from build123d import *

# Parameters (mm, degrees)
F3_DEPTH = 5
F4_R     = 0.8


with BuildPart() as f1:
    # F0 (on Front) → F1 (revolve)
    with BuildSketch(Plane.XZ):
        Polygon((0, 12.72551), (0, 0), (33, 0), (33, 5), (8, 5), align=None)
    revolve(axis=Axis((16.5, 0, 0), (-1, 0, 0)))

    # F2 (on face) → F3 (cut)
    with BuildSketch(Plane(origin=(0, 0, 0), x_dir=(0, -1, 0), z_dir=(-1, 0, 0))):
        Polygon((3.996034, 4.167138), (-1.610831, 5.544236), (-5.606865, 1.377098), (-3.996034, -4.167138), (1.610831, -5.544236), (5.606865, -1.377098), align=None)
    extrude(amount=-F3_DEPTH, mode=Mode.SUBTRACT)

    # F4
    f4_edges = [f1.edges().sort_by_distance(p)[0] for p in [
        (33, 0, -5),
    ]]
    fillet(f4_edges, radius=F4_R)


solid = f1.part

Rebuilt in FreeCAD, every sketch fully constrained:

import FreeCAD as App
import Part
import Sketcher
from FreeCAD import Vector
Q = App.Units.Quantity


def edges_at(feature, points):
    """Names of the edges that pass closest to the given points."""
    edges = feature.Shape.Edges
    near = lambda p: min(range(len(edges)), key=lambda i: edges[i].distToShape(Part.Vertex(*p))[0])
    return sorted({f"Edge{near(p) + 1}" for p in points})


def add_polygon(sketch, points):
    """Adds a closed chain of lines whose ends are joined by coincident constraints."""
    first, n = sketch.GeometryCount, len(points)
    for a, b in zip(points, points[1:] + points[:1]):
        sketch.addGeometry(Part.LineSegment(App.Vector(*a, 0), App.Vector(*b, 0)), False)
    for i in range(n):
        sketch.addConstraint(Sketcher.Constraint("Coincident", first + i, 2, first + (i + 1) % n, 1))

doc = App.newDocument("Part")
body = doc.addObject("PartDesign::Body", "Body")

# Sketch on XZ plane
sketch1 = doc.addObject("Sketcher::SketchObject", "Sketch")
body.addObject(sketch1)
sketch1.AttachmentSupport = (doc.XZ_Plane, [""])
sketch1.MapMode = "FlatFace"
add_polygon(sketch1, [(0, 13), (0, 0), (33, 0), (33, 5), (8, 5)])  # lines 0-4
sketch1.addConstraint([
    Sketcher.Constraint("Vertical", 0),
    Sketcher.Constraint("Horizontal", 1),
    Sketcher.Constraint("Vertical", 2),
    Sketcher.Constraint("Horizontal", 3),
    Sketcher.Constraint("Coincident", 0, 2, -1, 1),
    Sketcher.Constraint("DistanceX", 1, 1, 1, 2, Q("33 mm")),
    Sketcher.Constraint("DistanceX", 3, 2, 3, 1, Q("25 mm")),
    Sketcher.Constraint("DistanceY", 2, 1, 2, 2, Q("5 mm")),
    Sketcher.Constraint("Angle", 4, Q("136.000001 deg")),
])
revolution = doc.addObject("PartDesign::Revolution", "Revolution")
body.addObject(revolution)
revolution.Profile = sketch1
revolution.ReferenceAxis = (sketch1, ["H_Axis"])
revolution.Angle = 360

# Sketch on YZ plane
sketch2 = doc.addObject("Sketcher::SketchObject", "Sketch001")
body.addObject(sketch2)
sketch2.AttachmentSupport = (doc.YZ_Plane, [""])
sketch2.MapMode = "FlatFace"
add_polygon(sketch2, [(-4, 4), (2, 6), (6, 1), (4, -4), (-2, -6), (-6, -1)])  # lines 0-5
sketch2.addConstraint([
    Sketcher.Constraint("Symmetric", 0, 2, 3, 2, -1, 1),
    Sketcher.Constraint("Symmetric", 1, 2, 4, 2, -1, 1),
    Sketcher.Constraint("Symmetric", 2, 2, 5, 2, -1, 1),
    Sketcher.Constraint("Equal", 0, 1),
    Sketcher.Constraint("Equal", 1, 2),
    Sketcher.Constraint("DistanceY", 3, 2, 2, 2, Q("1.377098 mm")),
    Sketcher.Constraint("DistanceX", 4, 2, 2, 2, Q("9.602899 mm")),
    Sketcher.Constraint("DistanceX", -1, 1, 0, 2, Q("1.610831 mm")),
    Sketcher.Constraint("DistanceX", 2, 2, 1, 2, Q("1.610831 mm")),
])
pocket1 = doc.addObject("PartDesign::Pocket", "Pocket")
body.addObject(pocket1)
pocket1.Profile = sketch2
pocket1.Length = 5
pocket1.Reversed = True
doc.recompute()

fillet = doc.addObject("PartDesign::Fillet", "Fillet")
body.addObject(fillet)
fillet.Base = (pocket1, edges_at(pocket1, [(33, 0, -5)]))
fillet.Radius = 0.8

doc.recompute()
